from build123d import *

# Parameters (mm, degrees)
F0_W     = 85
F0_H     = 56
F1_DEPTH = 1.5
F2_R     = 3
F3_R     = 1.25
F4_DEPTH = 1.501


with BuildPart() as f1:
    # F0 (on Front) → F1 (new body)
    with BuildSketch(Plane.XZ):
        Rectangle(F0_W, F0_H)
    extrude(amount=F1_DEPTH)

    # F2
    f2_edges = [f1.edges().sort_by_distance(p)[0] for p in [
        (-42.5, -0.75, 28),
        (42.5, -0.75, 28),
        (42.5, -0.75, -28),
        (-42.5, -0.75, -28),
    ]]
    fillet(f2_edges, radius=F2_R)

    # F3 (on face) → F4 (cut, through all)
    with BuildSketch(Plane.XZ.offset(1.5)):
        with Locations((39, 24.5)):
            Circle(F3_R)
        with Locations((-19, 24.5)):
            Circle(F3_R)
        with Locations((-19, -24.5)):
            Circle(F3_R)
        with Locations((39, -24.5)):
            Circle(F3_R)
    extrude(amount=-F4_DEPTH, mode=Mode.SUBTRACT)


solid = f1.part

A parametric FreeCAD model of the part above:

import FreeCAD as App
import Part
import Sketcher
from FreeCAD import Vector
Q = App.Units.Quantity


def edges_at(feature, points):
    """Names of the edges that pass closest to the given points."""
    edges = feature.Shape.Edges
    near = lambda p: min(range(len(edges)), key=lambda i: edges[i].distToShape(Part.Vertex(*p))[0])
    return sorted({f"Edge{near(p) + 1}" for p in points})


def add_polygon(sketch, points):
    """Adds a closed chain of lines whose ends are joined by coincident constraints."""
    first, n = sketch.GeometryCount, len(points)
    for a, b in zip(points, points[1:] + points[:1]):
        sketch.addGeometry(Part.LineSegment(App.Vector(*a, 0), App.Vector(*b, 0)), False)
    for i in range(n):
        sketch.addConstraint(Sketcher.Constraint("Coincident", first + i, 2, first + (i + 1) % n, 1))

doc = App.newDocument("Part")
body = doc.addObject("PartDesign::Body", "Body")

# Sketch on XZ plane
sketch1 = doc.addObject("Sketcher::SketchObject", "Sketch")
body.addObject(sketch1)
sketch1.AttachmentSupport = (doc.XZ_Plane, [""])
sketch1.MapMode = "FlatFace"
add_polygon(sketch1, [(-42, 28), (-42, -28), (42, -28), (42, 28)])  # lines 0-3
sketch1.addConstraint([
    Sketcher.Constraint("Vertical", 0),
    Sketcher.Constraint("Horizontal", 1),
    Sketcher.Constraint("Vertical", 2),
    Sketcher.Constraint("Horizontal", 3),
    Sketcher.Constraint("Symmetric", 0, 2, 2, 2, -1, 1),
    Sketcher.Constraint("DistanceX", 1, 1, 1, 2, Q("85 mm")),
    Sketcher.Constraint("DistanceY", 0, 2, 0, 1, Q("56 mm")),
])
pad1 = doc.addObject("PartDesign::Pad", "Pad")
body.addObject(pad1)
pad1.Profile = sketch1
pad1.Length = 1.5
doc.recompute()

fillet = doc.addObject("PartDesign::Fillet", "Fillet")
body.addObject(fillet)
fillet.Base = (pad1, edges_at(pad1, [
    (-42.5, -0.75, 28),
    (42.5, -0.75, 28),
    (42.5, -0.75, -28),
    (-42.5, -0.75, -28),
]))
fillet.Radius = 3

# Sketch on XZ plane
sketch2 = doc.addObject("Sketcher::SketchObject", "Sketch001")
body.addObject(sketch2)
sketch2.AttachmentSupport = (doc.XZ_Plane, [""])
sketch2.MapMode = "FlatFace"
sketch2.AttachmentOffset = App.Placement(Vector(0, 0, 1.5), App.Rotation())
sketch2.addGeometry([
    Part.Circle(Vector(39, 24.5, 0), Vector(0, 0, 1), 1.2),
    Part.Circle(Vector(-19, 24.5, 0), Vector(0, 0, 1), 1.2),
    Part.Circle(Vector(-19, -24.5, 0), Vector(0, 0, 1), 1.2),
    Part.Circle(Vector(39, -24.5, 0), Vector(0, 0, 1), 1.2),
], False)
sketch2.addConstraint([
    Sketcher.Constraint("Equal", 0, 1),
    Sketcher.Constraint("Equal", 1, 2),
    Sketcher.Constraint("Equal", 2, 3),
    Sketcher.Constraint("Symmetric", 1, 3, 2, 3, -1),
    Sketcher.Constraint("Symmetric", 0, 3, 3, 3, -1),
    Sketcher.Constraint("Horizontal", 0, 3, 1, 3),
    Sketcher.Constraint("Diameter", 0, Q("2.5 mm")),
    Sketcher.Constraint("DistanceX", -1, 1, 0, 3, Q("39 mm")),
    Sketcher.Constraint("DistanceX", 1, 3, -1, 1, Q("19 mm")),
    Sketcher.Constraint("DistanceY", 2, 3, 1, 3, Q("49 mm")),
])
pocket1 = doc.addObject("PartDesign::Pocket", "Pocket")
body.addObject(pocket1)
pocket1.Profile = sketch2
pocket1.Type = "ThroughAll"

doc.recompute()
